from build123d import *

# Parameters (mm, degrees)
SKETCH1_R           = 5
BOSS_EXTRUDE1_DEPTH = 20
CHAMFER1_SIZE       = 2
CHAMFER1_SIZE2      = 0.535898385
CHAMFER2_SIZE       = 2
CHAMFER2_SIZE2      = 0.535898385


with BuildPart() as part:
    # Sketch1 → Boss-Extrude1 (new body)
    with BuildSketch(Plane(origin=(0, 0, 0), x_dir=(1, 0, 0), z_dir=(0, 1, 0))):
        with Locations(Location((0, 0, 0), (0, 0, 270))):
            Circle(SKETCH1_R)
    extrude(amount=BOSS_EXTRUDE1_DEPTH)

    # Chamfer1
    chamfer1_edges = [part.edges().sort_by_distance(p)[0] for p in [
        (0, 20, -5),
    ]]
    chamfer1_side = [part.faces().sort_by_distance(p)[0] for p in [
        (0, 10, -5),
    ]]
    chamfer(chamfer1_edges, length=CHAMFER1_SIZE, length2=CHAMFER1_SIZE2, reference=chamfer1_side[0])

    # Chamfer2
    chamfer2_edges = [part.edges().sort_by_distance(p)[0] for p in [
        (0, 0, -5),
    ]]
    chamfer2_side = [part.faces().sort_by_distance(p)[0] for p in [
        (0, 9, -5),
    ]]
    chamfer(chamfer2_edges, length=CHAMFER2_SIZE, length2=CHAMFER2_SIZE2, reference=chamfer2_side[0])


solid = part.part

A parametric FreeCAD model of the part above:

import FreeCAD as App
import Part
import Sketcher

V = App.Vector


def edges_at(feature, points):
    """Names of the edges that pass closest to the given points."""
    edges = feature.Shape.Edges
    near = lambda p: min(range(len(edges)), key=lambda i: edges[i].distToShape(Part.Vertex(*p))[0])
    return sorted({f"Edge{near(p) + 1}" for p in points})

doc = App.newDocument("Part")
body = doc.addObject("PartDesign::Body", "Body")

sketch1 = body.newObject("Sketcher::SketchObject", "Sketch")
sketch1.AttachmentSupport = (doc.getObject("XZ_Plane"), [""])
sketch1.MapMode = "FlatFace"
sketch1.addGeometry(Part.Circle(V(0, 0, 0), V(0, 0, 1), 5), False)
sketch1.addConstraint([
    Sketcher.Constraint("Coincident", 0, 3, -1, 1),
    Sketcher.Constraint("Diameter", 0, 10.0),
])
pad1 = body.newObject("PartDesign::Pad", "Pad")
pad1.Profile = sketch1
pad1.Length = 20
pad1.Reversed = True
doc.recompute()

chamfer = body.newObject("PartDesign::Chamfer", "Chamfer")
chamfer.Base = (pad1, edges_at(pad1, [(0, 20, -5)]))
chamfer.ChamferType = "Two distances"
chamfer.Size = 2
chamfer.Size2 = 0.535898
doc.recompute()

chamfer2 = body.newObject("PartDesign::Chamfer", "Chamfer001")
chamfer2.Base = (chamfer, edges_at(chamfer, [(0, 0, -5)]))
chamfer2.ChamferType = "Two distances"
chamfer2.Size = 2
chamfer2.Size2 = 0.535898

doc.recompute()
